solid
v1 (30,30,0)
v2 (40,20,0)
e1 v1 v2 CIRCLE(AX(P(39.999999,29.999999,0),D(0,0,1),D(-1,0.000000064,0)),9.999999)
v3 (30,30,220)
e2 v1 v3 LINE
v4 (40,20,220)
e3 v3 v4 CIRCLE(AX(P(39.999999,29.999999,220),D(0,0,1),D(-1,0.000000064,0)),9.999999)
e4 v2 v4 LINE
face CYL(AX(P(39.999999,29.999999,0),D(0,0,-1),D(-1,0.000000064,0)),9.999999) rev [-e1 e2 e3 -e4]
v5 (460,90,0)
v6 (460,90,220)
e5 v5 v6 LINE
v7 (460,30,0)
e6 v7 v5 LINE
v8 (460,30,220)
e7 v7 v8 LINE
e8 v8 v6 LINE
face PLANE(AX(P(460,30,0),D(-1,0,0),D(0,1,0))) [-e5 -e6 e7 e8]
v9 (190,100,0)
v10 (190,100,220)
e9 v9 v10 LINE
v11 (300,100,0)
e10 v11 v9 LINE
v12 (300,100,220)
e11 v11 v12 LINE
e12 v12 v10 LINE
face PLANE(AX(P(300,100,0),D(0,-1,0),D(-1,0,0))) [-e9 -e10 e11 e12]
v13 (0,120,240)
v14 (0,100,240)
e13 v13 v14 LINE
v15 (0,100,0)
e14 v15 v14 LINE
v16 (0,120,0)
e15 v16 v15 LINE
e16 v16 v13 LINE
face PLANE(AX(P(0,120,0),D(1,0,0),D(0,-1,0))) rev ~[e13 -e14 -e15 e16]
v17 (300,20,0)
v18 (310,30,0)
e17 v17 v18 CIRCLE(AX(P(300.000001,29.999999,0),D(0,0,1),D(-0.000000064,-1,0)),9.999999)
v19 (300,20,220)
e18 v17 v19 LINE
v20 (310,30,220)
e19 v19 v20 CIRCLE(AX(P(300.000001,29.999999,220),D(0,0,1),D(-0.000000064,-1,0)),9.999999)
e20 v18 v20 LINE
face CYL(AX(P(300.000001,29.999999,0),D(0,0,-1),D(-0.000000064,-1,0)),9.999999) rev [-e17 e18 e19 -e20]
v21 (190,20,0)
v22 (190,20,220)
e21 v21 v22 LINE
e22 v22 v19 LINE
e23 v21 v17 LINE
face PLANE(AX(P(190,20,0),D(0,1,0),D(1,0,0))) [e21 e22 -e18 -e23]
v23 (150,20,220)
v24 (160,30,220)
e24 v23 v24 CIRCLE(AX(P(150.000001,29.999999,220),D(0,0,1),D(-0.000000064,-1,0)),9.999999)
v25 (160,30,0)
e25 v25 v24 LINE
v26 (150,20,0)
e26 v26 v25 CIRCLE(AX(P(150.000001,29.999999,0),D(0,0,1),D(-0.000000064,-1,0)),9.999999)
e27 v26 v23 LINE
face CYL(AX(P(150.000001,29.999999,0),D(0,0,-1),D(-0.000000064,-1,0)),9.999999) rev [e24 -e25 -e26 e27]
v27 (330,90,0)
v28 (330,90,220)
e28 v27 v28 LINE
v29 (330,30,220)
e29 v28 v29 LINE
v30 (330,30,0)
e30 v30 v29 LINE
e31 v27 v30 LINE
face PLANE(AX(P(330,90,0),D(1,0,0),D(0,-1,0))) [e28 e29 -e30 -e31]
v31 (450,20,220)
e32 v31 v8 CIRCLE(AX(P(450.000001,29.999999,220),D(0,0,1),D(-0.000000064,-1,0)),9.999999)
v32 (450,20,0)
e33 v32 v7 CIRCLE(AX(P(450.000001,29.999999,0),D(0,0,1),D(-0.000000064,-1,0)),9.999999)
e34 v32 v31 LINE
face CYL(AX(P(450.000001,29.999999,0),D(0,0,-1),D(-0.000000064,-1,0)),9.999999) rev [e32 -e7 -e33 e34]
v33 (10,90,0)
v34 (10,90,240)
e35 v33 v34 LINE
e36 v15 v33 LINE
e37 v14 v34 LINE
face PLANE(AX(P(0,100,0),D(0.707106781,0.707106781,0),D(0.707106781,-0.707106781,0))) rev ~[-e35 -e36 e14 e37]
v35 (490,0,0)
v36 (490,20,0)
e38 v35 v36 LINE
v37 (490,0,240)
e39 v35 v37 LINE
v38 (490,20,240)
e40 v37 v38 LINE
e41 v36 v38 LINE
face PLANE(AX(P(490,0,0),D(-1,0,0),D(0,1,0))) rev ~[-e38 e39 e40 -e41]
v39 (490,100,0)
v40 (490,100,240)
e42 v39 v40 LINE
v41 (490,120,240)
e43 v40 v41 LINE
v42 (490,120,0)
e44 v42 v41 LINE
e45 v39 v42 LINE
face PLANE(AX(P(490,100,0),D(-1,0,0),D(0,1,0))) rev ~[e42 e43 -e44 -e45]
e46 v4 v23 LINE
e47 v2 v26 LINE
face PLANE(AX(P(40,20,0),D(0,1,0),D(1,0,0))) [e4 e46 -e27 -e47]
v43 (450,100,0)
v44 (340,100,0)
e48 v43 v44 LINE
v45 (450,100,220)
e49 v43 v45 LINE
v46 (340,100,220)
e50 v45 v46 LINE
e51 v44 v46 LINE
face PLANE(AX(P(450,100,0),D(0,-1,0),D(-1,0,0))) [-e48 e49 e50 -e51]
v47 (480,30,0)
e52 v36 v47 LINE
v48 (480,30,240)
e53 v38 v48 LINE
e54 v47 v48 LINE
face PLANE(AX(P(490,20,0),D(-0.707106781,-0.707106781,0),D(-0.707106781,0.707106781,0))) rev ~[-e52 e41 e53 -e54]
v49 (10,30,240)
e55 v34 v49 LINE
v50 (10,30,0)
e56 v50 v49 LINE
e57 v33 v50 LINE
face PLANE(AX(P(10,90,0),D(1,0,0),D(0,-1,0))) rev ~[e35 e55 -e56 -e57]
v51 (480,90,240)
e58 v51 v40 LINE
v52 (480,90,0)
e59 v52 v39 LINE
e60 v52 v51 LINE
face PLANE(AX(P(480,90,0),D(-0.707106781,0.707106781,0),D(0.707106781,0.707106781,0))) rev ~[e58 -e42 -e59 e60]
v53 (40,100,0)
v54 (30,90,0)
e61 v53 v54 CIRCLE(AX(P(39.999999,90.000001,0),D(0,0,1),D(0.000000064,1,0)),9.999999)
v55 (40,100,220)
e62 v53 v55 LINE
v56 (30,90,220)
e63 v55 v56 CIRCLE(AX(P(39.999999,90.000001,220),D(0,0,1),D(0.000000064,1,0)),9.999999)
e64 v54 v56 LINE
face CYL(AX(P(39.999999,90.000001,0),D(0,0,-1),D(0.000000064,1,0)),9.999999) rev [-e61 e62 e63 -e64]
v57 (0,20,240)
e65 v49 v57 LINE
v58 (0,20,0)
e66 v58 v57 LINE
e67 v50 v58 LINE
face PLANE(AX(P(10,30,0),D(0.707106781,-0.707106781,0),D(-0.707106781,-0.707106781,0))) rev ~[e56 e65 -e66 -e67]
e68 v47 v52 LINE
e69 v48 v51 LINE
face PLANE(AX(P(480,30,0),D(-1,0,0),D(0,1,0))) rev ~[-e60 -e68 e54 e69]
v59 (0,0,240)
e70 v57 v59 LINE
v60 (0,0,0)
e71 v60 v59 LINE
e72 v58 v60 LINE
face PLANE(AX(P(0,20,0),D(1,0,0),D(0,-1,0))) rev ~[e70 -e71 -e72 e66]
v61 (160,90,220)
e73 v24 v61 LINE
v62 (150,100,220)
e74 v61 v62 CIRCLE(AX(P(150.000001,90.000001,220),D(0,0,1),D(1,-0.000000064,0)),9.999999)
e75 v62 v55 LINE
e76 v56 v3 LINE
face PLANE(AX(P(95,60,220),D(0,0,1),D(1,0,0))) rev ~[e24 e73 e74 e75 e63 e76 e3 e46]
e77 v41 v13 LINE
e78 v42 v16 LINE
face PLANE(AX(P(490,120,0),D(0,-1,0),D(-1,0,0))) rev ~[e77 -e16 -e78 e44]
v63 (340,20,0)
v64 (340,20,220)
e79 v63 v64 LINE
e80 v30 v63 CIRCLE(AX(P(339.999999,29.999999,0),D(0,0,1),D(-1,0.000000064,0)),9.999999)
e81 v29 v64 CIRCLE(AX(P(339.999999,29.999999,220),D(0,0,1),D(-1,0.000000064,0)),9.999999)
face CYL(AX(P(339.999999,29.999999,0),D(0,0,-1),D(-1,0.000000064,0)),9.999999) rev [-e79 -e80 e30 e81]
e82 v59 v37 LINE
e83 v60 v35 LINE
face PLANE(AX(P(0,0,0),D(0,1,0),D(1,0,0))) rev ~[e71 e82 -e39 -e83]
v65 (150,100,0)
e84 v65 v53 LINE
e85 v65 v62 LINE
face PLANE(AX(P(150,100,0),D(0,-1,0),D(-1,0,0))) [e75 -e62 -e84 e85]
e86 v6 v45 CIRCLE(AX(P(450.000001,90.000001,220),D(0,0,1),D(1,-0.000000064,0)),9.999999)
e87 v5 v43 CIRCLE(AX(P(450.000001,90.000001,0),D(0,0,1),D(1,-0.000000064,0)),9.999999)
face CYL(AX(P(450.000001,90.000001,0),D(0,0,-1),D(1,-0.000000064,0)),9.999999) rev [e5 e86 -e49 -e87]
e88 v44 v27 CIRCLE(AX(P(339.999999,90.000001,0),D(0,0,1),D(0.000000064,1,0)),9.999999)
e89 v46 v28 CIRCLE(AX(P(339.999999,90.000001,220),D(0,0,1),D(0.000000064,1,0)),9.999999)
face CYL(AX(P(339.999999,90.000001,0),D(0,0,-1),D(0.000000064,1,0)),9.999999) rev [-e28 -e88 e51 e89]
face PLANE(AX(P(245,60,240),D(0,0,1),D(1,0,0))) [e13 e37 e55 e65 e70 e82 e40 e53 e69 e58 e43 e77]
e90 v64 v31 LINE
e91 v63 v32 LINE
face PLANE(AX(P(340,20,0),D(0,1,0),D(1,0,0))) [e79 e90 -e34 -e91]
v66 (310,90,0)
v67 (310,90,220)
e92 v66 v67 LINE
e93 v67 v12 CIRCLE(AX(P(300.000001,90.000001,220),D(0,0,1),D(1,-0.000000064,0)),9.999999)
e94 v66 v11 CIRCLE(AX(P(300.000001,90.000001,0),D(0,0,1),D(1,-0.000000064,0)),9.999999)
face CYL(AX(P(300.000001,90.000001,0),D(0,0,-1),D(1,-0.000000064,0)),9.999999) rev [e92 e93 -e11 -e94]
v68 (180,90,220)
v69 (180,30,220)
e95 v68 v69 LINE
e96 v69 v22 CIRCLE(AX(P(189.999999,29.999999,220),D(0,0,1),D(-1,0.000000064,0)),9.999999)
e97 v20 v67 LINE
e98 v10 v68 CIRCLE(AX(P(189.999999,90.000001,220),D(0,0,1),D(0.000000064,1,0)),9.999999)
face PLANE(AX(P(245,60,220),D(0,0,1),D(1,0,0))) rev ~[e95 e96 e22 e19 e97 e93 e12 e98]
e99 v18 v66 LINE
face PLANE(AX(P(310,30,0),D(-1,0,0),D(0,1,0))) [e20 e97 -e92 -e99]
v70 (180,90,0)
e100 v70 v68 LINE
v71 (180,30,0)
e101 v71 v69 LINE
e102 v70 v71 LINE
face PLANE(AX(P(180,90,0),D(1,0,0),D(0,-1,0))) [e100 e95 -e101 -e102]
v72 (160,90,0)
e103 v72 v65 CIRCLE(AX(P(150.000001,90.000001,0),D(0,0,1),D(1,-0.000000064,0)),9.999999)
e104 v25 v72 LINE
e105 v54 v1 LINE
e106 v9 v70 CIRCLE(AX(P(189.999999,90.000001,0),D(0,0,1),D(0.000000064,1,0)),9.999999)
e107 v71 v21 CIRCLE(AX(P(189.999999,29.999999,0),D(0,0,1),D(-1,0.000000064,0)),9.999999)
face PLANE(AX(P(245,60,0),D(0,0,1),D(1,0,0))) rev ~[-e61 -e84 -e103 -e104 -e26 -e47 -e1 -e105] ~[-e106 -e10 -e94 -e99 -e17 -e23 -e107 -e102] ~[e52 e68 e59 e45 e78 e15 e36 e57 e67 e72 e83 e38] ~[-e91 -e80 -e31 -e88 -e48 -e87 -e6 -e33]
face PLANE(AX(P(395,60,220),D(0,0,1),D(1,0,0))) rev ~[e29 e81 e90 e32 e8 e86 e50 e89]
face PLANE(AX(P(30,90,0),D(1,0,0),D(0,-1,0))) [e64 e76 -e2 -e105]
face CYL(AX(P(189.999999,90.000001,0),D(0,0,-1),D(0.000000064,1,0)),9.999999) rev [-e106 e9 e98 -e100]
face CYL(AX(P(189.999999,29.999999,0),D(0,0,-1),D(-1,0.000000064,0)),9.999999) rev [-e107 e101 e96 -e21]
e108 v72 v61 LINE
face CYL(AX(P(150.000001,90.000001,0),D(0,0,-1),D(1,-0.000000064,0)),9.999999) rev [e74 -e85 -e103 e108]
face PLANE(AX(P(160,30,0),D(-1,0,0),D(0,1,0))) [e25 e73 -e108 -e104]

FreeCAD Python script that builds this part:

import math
import FreeCAD as App
import Part
import Sketcher
Q = App.Units.Quantity

doc = App.newDocument("Part")
body = doc.addObject("PartDesign::Body", "Body")

sketch1 = body.newObject("Sketcher::SketchObject", "Sketch")
sketch1.AttachmentSupport = (doc.getObject("XY_Plane"), [""])
sketch1.MapMode = "FlatFace"
sketch1.addGeometry([
    Part.LineSegment(App.Vector(0, 20, 0), App.Vector(0, 0, 0)),
    Part.LineSegment(App.Vector(0, 0, 0), App.Vector(490, 0, 0)),
    Part.LineSegment(App.Vector(490, 0, 0), App.Vector(490, 20, 0)),
    Part.LineSegment(App.Vector(490, 20, 0), App.Vector(480, 30, 0)),
    Part.LineSegment(App.Vector(480, 30, 0), App.Vector(480, 90, 0)),
    Part.LineSegment(App.Vector(480, 90, 0), App.Vector(490, 100, 0)),
    Part.LineSegment(App.Vector(490, 100, 0), App.Vector(490, 120, 0)),
    Part.LineSegment(App.Vector(490, 120, 0), App.Vector(0, 120, 0)),
    Part.LineSegment(App.Vector(0, 120, 0), App.Vector(0, 100, 0)),
    Part.LineSegment(App.Vector(0, 100, 0), App.Vector(10, 90, 0)),
    Part.LineSegment(App.Vector(10, 90, 0), App.Vector(10, 30, 0)),
    Part.LineSegment(App.Vector(10, 30, 0), App.Vector(0, 20, 0)),
], False)
sketch1.addConstraint([
    Sketcher.Constraint("Coincident", 0, 2, 1, 1),
    Sketcher.Constraint("Coincident", 1, 2, 2, 1),
    Sketcher.Constraint("Coincident", 2, 2, 3, 1),
    Sketcher.Constraint("Coincident", 3, 2, 4, 1),
    Sketcher.Constraint("Coincident", 4, 2, 5, 1),
    Sketcher.Constraint("Coincident", 5, 2, 6, 1),
    Sketcher.Constraint("Coincident", 6, 2, 7, 1),
    Sketcher.Constraint("Coincident", 7, 2, 8, 1),
    Sketcher.Constraint("Coincident", 8, 2, 9, 1),
    Sketcher.Constraint("Coincident", 9, 2, 10, 1),
    Sketcher.Constraint("Coincident", 10, 2, 11, 1),
    Sketcher.Constraint("Coincident", 11, 2, 0, 1),
    Sketcher.Constraint("Vertical", 0),
    Sketcher.Constraint("Horizontal", 1),
    Sketcher.Constraint("Vertical", 2),
    Sketcher.Constraint("Vertical", 4),
    Sketcher.Constraint("Vertical", 6),
    Sketcher.Constraint("Horizontal", 7),
    Sketcher.Constraint("Vertical", 8),
    Sketcher.Constraint("Vertical", 10),
    Sketcher.Constraint("Coincident", 0, 2, -1, 1),
    Sketcher.Constraint("PointOnObject", 7, 2, -2),
    Sketcher.Constraint("Perpendicular", 3, 5),
    Sketcher.Constraint("Perpendicular", 5, 9),
    Sketcher.Constraint("Perpendicular", 9, 11),
    Sketcher.Constraint("Horizontal", 5, 2, 8, 2),
    Sketcher.Constraint("Horizontal", 4, 2, 9, 2),
    Sketcher.Constraint("Horizontal", 3, 2, 10, 2),
    Sketcher.Constraint("Horizontal", 2, 2, 11, 2),
    Sketcher.Constraint("Vertical", 2, 2, 5, 2),
    Sketcher.Constraint("Equal", 2, 6),
    Sketcher.Constraint("DistanceX", 1, 1, 1, 2, Q("490 mm")),
    Sketcher.Constraint("DistanceY", 0, 2, 0, 1, Q("20 mm")),
    Sketcher.Constraint("DistanceY", 4, 1, 4, 2, Q("60 mm")),
    Sketcher.Constraint("DistanceX", -1, 1, 3, 2, Q("480 mm")),
])
pad1 = body.newObject("PartDesign::Pad", "Pad")
pad1.Profile = sketch1
pad1.Length = 240

sketch2 = body.newObject("Sketcher::SketchObject", "Sketch001")
sketch2.AttachmentSupport = (doc.getObject("XY_Plane"), [""])
sketch2.MapMode = "FlatFace"
sketch2.addGeometry([
    Part.LineSegment(App.Vector(150, 100, 0), App.Vector(40, 100, 0)),
    Part.ArcOfCircle(Part.Circle(App.Vector(40, 90, 0), App.Vector(0, 0, 1), 10), math.radians(90), math.radians(180)),
    Part.LineSegment(App.Vector(30, 90, 0), App.Vector(30, 30, 0)),
    Part.ArcOfCircle(Part.Circle(App.Vector(40, 30, 0), App.Vector(0, 0, 1), 10), math.radians(180), math.radians(270)),
    Part.LineSegment(App.Vector(40, 20, 0), App.Vector(150, 20, 0)),
    Part.ArcOfCircle(Part.Circle(App.Vector(150, 30, 0), App.Vector(0, 0, 1), 10), math.radians(-90), math.radians(0)),
    Part.LineSegment(App.Vector(160, 30, 0), App.Vector(160, 90, 0)),
    Part.ArcOfCircle(Part.Circle(App.Vector(150, 90, 0), App.Vector(0, 0, 1), 10), math.radians(0), math.radians(90)),
    Part.LineSegment(App.Vector(300, 100, 0), App.Vector(190, 100, 0)),
    Part.ArcOfCircle(Part.Circle(App.Vector(190, 90, 0), App.Vector(0, 0, 1), 10), math.radians(90), math.radians(180)),
    Part.LineSegment(App.Vector(180, 90, 0), App.Vector(180, 30, 0)),
    Part.ArcOfCircle(Part.Circle(App.Vector(190, 30, 0), App.Vector(0, 0, 1), 10), math.radians(180), math.radians(270)),
    Part.LineSegment(App.Vector(190, 20, 0), App.Vector(300, 20, 0)),
    Part.ArcOfCircle(Part.Circle(App.Vector(300, 30, 0), App.Vector(0, 0, 1), 10), math.radians(-90), math.radians(0)),
    Part.LineSegment(App.Vector(310, 30, 0), App.Vector(310, 90, 0)),
    Part.ArcOfCircle(Part.Circle(App.Vector(300, 90, 0), App.Vector(0, 0, 1), 10), math.radians(0), math.radians(90)),
    Part.LineSegment(App.Vector(450, 100, 0), App.Vector(340, 100, 0)),
    Part.ArcOfCircle(Part.Circle(App.Vector(340, 90, 0), App.Vector(0, 0, 1), 10), math.radians(90), math.radians(180)),
    Part.LineSegment(App.Vector(330, 90, 0), App.Vector(330, 30, 0)),
    Part.ArcOfCircle(Part.Circle(App.Vector(340, 30, 0), App.Vector(0, 0, 1), 10), math.radians(180), math.radians(270)),
    Part.LineSegment(App.Vector(340, 20, 0), App.Vector(450, 20, 0)),
    Part.ArcOfCircle(Part.Circle(App.Vector(450, 30, 0), App.Vector(0, 0, 1), 10), math.radians(-90), math.radians(0)),
    Part.LineSegment(App.Vector(460, 30, 0), App.Vector(460, 90, 0)),
    Part.ArcOfCircle(Part.Circle(App.Vector(450, 90, 0), App.Vector(0, 0, 1), 10), math.radians(0), math.radians(90)),
], False)
sketch2.addConstraint([
    Sketcher.Constraint("Tangent", 0, 2, 1, 1),
    Sketcher.Constraint("Tangent", 1, 2, 2, 1),
    Sketcher.Constraint("Tangent", 2, 2, 3, 1),
    Sketcher.Constraint("Tangent", 3, 2, 4, 1),
    Sketcher.Constraint("Tangent", 4, 2, 5, 1),
    Sketcher.Constraint("Tangent", 5, 2, 6, 1),
    Sketcher.Constraint("Tangent", 6, 2, 7, 1),
    Sketcher.Constraint("Tangent", 7, 2, 0, 1),
    Sketcher.Constraint("Tangent", 8, 2, 9, 1),
    Sketcher.Constraint("Tangent", 9, 2, 10, 1),
    Sketcher.Constraint("Tangent", 10, 2, 11, 1),
    Sketcher.Constraint("Tangent", 11, 2, 12, 1),
    Sketcher.Constraint("Tangent", 12, 2, 13, 1),
    Sketcher.Constraint("Tangent", 13, 2, 14, 1),
    Sketcher.Constraint("Tangent", 14, 2, 15, 1),
    Sketcher.Constraint("Tangent", 15, 2, 8, 1),
    Sketcher.Constraint("Tangent", 16, 2, 17, 1),
    Sketcher.Constraint("Tangent", 17, 2, 18, 1),
    Sketcher.Constraint("Tangent", 18, 2, 19, 1),
    Sketcher.Constraint("Tangent", 19, 2, 20, 1),
    Sketcher.Constraint("Tangent", 20, 2, 21, 1),
    Sketcher.Constraint("Tangent", 21, 2, 22, 1),
    Sketcher.Constraint("Tangent", 22, 2, 23, 1),
    Sketcher.Constraint("Tangent", 23, 2, 16, 1),
    Sketcher.Constraint("Horizontal", 0),
    Sketcher.Constraint("Vertical", 2),
    Sketcher.Constraint("Horizontal", 4),
    Sketcher.Constraint("Vertical", 6),
    Sketcher.Constraint("Horizontal", 8),
    Sketcher.Constraint("Vertical", 10),
    Sketcher.Constraint("Horizontal", 12),
    Sketcher.Constraint("Vertical", 14),
    Sketcher.Constraint("Horizontal", 16),
    Sketcher.Constraint("Vertical", 18),
    Sketcher.Constraint("Horizontal", 20),
    Sketcher.Constraint("Vertical", 22),
    Sketcher.Constraint("Equal", 1, 3),
    Sketcher.Constraint("Equal", 3, 5),
    Sketcher.Constraint("Equal", 5, 7),
    Sketcher.Constraint("Equal", 7, 9),
    Sketcher.Constraint("Equal", 9, 11),
    Sketcher.Constraint("Equal", 11, 13),
    Sketcher.Constraint("Equal", 13, 15),
    Sketcher.Constraint("Equal", 15, 17),
    Sketcher.Constraint("Equal", 17, 19),
    Sketcher.Constraint("Equal", 19, 21),
    Sketcher.Constraint("Equal", 21, 23),
    Sketcher.Constraint("Horizontal", 7, 3, 9, 3),
    Sketcher.Constraint("Horizontal", 5, 3, 11, 3),
    Sketcher.Constraint("Horizontal", 15, 3, 17, 3),
    Sketcher.Constraint("Horizontal", 13, 3, 19, 3),
    Sketcher.Constraint("Equal", 4, 8),
    Sketcher.Constraint("Equal", 12, 16),
    Sketcher.Constraint("Radius", 1, Q("9.999999 mm")),
    Sketcher.Constraint("DistanceX", 0, 2, 0, 1, Q("110 mm")),
    Sketcher.Constraint("DistanceY", 2, 2, 2, 1, Q("60 mm")),
    Sketcher.Constraint("DistanceX", -1, 1, 1, 3, Q("39.999999 mm")),
    Sketcher.Constraint("DistanceY", -1, 1, 1, 3, Q("90.000001 mm")),
    Sketcher.Constraint("DistanceX", -1, 1, 9, 3, Q("189.999999 mm")),
    Sketcher.Constraint("DistanceX", -1, 1, 17, 3, Q("339.999999 mm")),
])
pocket1 = body.newObject("PartDesign::Pocket", "Pocket")
pocket1.Profile = sketch2
pocket1.Length = 220
pocket1.Reversed = True

doc.recompute()
